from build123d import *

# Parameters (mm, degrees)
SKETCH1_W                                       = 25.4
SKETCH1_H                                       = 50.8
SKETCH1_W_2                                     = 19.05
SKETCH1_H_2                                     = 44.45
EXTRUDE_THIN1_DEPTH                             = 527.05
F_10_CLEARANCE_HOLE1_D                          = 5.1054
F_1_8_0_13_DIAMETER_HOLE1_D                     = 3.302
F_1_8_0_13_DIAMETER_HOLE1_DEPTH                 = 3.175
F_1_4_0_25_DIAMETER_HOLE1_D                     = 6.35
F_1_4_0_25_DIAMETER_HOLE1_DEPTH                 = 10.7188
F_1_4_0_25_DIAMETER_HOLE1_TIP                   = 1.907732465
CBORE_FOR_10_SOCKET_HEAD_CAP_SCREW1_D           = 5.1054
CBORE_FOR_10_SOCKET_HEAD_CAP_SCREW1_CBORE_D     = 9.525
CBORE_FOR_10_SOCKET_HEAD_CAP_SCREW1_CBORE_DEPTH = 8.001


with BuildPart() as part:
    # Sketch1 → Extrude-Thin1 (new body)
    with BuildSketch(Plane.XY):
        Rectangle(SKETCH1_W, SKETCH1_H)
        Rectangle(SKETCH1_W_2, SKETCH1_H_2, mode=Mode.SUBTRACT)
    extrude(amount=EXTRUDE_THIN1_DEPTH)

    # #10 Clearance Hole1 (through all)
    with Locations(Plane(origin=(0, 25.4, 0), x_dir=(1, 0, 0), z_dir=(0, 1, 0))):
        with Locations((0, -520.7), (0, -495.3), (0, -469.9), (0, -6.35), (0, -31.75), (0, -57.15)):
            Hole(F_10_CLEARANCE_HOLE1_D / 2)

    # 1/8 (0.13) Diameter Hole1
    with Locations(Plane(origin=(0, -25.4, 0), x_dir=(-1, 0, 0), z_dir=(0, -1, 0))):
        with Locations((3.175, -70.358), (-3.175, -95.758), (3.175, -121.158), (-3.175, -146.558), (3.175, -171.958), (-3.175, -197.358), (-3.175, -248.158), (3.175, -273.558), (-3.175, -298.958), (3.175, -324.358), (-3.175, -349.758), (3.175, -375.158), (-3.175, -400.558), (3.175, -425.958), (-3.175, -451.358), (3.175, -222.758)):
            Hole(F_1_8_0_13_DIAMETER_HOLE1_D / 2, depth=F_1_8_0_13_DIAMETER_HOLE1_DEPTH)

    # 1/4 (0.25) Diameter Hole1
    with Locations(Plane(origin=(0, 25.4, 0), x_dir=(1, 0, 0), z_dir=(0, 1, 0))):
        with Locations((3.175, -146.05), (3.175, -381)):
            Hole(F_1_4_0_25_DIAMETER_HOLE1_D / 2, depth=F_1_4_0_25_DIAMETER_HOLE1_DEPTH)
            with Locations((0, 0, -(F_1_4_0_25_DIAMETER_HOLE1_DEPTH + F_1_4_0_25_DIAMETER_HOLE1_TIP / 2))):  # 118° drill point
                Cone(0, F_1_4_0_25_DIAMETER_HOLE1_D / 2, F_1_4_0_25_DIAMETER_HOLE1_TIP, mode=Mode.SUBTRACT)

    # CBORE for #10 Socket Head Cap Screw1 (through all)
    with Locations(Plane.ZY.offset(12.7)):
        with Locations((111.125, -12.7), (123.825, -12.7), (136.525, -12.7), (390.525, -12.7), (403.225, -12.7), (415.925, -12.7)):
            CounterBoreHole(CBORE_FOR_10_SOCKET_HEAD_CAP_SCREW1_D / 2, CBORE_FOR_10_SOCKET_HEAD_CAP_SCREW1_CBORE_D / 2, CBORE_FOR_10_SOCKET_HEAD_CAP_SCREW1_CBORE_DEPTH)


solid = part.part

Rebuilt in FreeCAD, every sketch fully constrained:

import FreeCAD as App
import Part
import Sketcher
from FreeCAD import Vector
Q = App.Units.Quantity


def add_polygon(sketch, points):
    """Adds a closed chain of lines whose ends are joined by coincident constraints."""
    first, n = sketch.GeometryCount, len(points)
    for a, b in zip(points, points[1:] + points[:1]):
        sketch.addGeometry(Part.LineSegment(App.Vector(*a, 0), App.Vector(*b, 0)), False)
    for i in range(n):
        sketch.addConstraint(Sketcher.Constraint("Coincident", first + i, 2, first + (i + 1) % n, 1))

doc = App.newDocument("Part")
params = doc.addObject("Spreadsheet::Sheet", "Params")
for row, (alias, value) in enumerate([
    ("sketch1_width", "1 in"),
    ("sketch1_height", "2 in"),
    ("sketch1_width2", "0.75 in"),
    ("sketch1_height2", "1.75 in"),
    ("pad1_length", "20.75 in"),
    ("sketch2_diameter", "0.201 in"),
    ("hole_diameter", "0.201 in"),
    ("sketch3_diameter", "0.13 in"),
    ("hole2_diameter", "0.13 in"),
    ("hole2_depth", "0.125 in"),
    ("sketch4_diameter", "0.25 in"),
    ("hole3_diameter", "0.25 in"),
    ("hole3_depth", "0.422 in"),
    ("sketch5_diameter", "0.201 in"),
    ("hole4_diameter", "0.201 in"),
    ("hole4_cbore_diameter", "0.375 in"),
    ("hole4_cbore_depth", "0.315 in"),
], start=1):
    params.set(f"A{row}", alias)
    params.set(f"B{row}", "=" + value)
    params.setAlias(f"B{row}", alias)

body = doc.addObject("PartDesign::Body", "Body")

# Sketch on XY plane
sketch1 = body.newObject("Sketcher::SketchObject", "Sketch")
sketch1.AttachmentSupport = (doc.getObject("XY_Plane"), [""])
sketch1.MapMode = "FlatFace"
add_polygon(sketch1, [(-13, 25), (-13, -25), (13, -25), (13, 25)])  # lines 0-3
add_polygon(sketch1, [(10, -22), (-10, -22), (-10, 22), (10, 22)])  # lines 4-7
sketch1.addConstraint([
    Sketcher.Constraint("Vertical", 0),
    Sketcher.Constraint("Horizontal", 1),
    Sketcher.Constraint("Vertical", 2),
    Sketcher.Constraint("Horizontal", 3),
    Sketcher.Constraint("Horizontal", 4),
    Sketcher.Constraint("Vertical", 5),
    Sketcher.Constraint("Horizontal", 6),
    Sketcher.Constraint("Vertical", 7),
    Sketcher.Constraint("Symmetric", 0, 2, 2, 2, -1, 1),
    Sketcher.Constraint("Symmetric", 4, 2, 6, 2, -1, 1),
    Sketcher.Constraint("DistanceX", 1, 1, 1, 2, Q("1 in")),
    Sketcher.Constraint("DistanceY", 0, 2, 0, 1, Q("2 in")),
    Sketcher.Constraint("DistanceX", 4, 2, 4, 1, Q("0.75 in")),
    Sketcher.Constraint("DistanceY", 5, 1, 5, 2, Q("1.75 in")),
])
sketch1.setExpression("Constraints[18]", "Params.sketch1_width")
sketch1.setExpression("Constraints[19]", "Params.sketch1_height")
sketch1.setExpression("Constraints[20]", "Params.sketch1_width2")
sketch1.setExpression("Constraints[21]", "Params.sketch1_height2")
pad1 = body.newObject("PartDesign::Pad", "Pad")
pad1.Profile = sketch1
pad1.setExpression("Length", "Params.pad1_length")

# Sketch on XZ plane
sketch2 = body.newObject("Sketcher::SketchObject", "Sketch001")
sketch2.AttachmentSupport = (doc.getObject("XZ_Plane"), [""])
sketch2.MapMode = "FlatFace"
sketch2.AttachmentOffset = App.Placement(Vector(0, 0, -1 * 25.4), App.Rotation())
sketch2.addGeometry([
    Part.Circle(Vector(0, 520.7, 0), Vector(0, 0, 1), 2.6),  # 0
    Part.Circle(Vector(0, 495.3, 0), Vector(0, 0, 1), 2.6),  # 1
    Part.Circle(Vector(0, 469.9, 0), Vector(0, 0, 1), 2.6),  # 2
    Part.Circle(Vector(0, 6.3, 0), Vector(0, 0, 1), 2.6),  # 3
    Part.Circle(Vector(0, 31.8, 0), Vector(0, 0, 1), 2.6),  # 4
    Part.Circle(Vector(0, 57.1, 0), Vector(0, 0, 1), 2.6),  # 5
], False)
sketch2.addConstraint([
    Sketcher.Constraint("Equal", 0, 1),
    Sketcher.Constraint("Equal", 1, 2),
    Sketcher.Constraint("Equal", 2, 3),
    Sketcher.Constraint("Equal", 3, 4),
    Sketcher.Constraint("Equal", 4, 5),
    Sketcher.Constraint("PointOnObject", 0, 3, -2),
    Sketcher.Constraint("PointOnObject", 1, 3, -2),
    Sketcher.Constraint("PointOnObject", 2, 3, -2),
    Sketcher.Constraint("PointOnObject", 3, 3, -2),
    Sketcher.Constraint("PointOnObject", 4, 3, -2),
    Sketcher.Constraint("PointOnObject", 5, 3, -2),
    Sketcher.Constraint("Diameter", 0, Q("0.201 in")),
    Sketcher.Constraint("DistanceY", 1, 3, 0, 3, Q("1 in")),
    Sketcher.Constraint("DistanceY", 2, 3, 1, 3, Q("1 in")),
    Sketcher.Constraint("DistanceY", 3, 3, 4, 3, Q("1 in")),
    Sketcher.Constraint("DistanceY", 4, 3, 5, 3, Q("1 in")),
    Sketcher.Constraint("DistanceY", -1, 1, 0, 3, Q("20.5 in")),
    Sketcher.Constraint("DistanceY", -1, 1, 3, 3, Q("0.25 in")),
])
sketch2.setExpression("Constraints[11]", "Params.sketch2_diameter")
doc.recompute()
hole = body.newObject("PartDesign::Hole", "Hole")
hole.Profile = sketch2
hole.ThreadType = "None"
hole.setExpression("Diameter", "Params.hole_diameter")
hole.DepthType = "ThroughAll"
hole.Reversed = True

# Sketch on XZ plane
sketch3 = body.newObject("Sketcher::SketchObject", "Sketch002")
sketch3.AttachmentSupport = (doc.getObject("XZ_Plane"), [""])
sketch3.MapMode = "FlatFace"
sketch3.AttachmentOffset = App.Placement(Vector(0, 0, 1 * 25.4), App.Rotation())
sketch3.addGeometry([
    Part.Circle(Vector(-3.2, 70.4, 0), Vector(0, 0, 1), 1.7),  # 0
    Part.Circle(Vector(3.2, 95.8, 0), Vector(0, 0, 1), 1.7),  # 1
    Part.Circle(Vector(-3.2, 121.2, 0), Vector(0, 0, 1), 1.7),  # 2
    Part.Circle(Vector(3.2, 146.6, 0), Vector(0, 0, 1), 1.7),  # 3
    Part.Circle(Vector(-3.2, 172, 0), Vector(0, 0, 1), 1.7),  # 4
    Part.Circle(Vector(3.2, 197.4, 0), Vector(0, 0, 1), 1.7),  # 5
    Part.Circle(Vector(3.2, 248.2, 0), Vector(0, 0, 1), 1.7),  # 6
    Part.Circle(Vector(-3.2, 273.6, 0), Vector(0, 0, 1), 1.7),  # 7
    Part.Circle(Vector(3.2, 299, 0), Vector(0, 0, 1), 1.7),  # 8
    Part.Circle(Vector(-3.2, 324.4, 0), Vector(0, 0, 1), 1.7),  # 9
    Part.Circle(Vector(3.2, 349.8, 0), Vector(0, 0, 1), 1.7),  # 10
    Part.Circle(Vector(-3.2, 375.2, 0), Vector(0, 0, 1), 1.7),  # 11
    Part.Circle(Vector(3.2, 400.6, 0), Vector(0, 0, 1), 1.7),  # 12
    Part.Circle(Vector(-3.2, 426, 0), Vector(0, 0, 1), 1.7),  # 13
    Part.Circle(Vector(3.2, 451.4, 0), Vector(0, 0, 1), 1.7),  # 14
    Part.Circle(Vector(-3.2, 222.8, 0), Vector(0, 0, 1), 1.7),  # 15
], False)
sketch3.addConstraint([
    Sketcher.Constraint("Equal", 0, 1),
    Sketcher.Constraint("Equal", 1, 2),
    Sketcher.Constraint("Equal", 2, 3),
    Sketcher.Constraint("Equal", 3, 4),
    Sketcher.Constraint("Equal", 4, 5),
    Sketcher.Constraint("Equal", 5, 6),
    Sketcher.Constraint("Equal", 6, 7),
    Sketcher.Constraint("Equal", 7, 8),
    Sketcher.Constraint("Equal", 8, 9),
    Sketcher.Constraint("Equal", 9, 10),
    Sketcher.Constraint("Equal", 10, 11),
    Sketcher.Constraint("Equal", 11, 12),
    Sketcher.Constraint("Equal", 12, 13),
    Sketcher.Constraint("Equal", 13, 14),
    Sketcher.Constraint("Equal", 14, 15),
    Sketcher.Constraint("Vertical", 0, 3, 2, 3),
    Sketcher.Constraint("Vertical", 1, 3, 3, 3),
    Sketcher.Constraint("Vertical", 2, 3, 4, 3),
    Sketcher.Constraint("Vertical", 3, 3, 5, 3),
    Sketcher.Constraint("Vertical", 5, 3, 6, 3),
    Sketcher.Constraint("Vertical", 4, 3, 7, 3),
    Sketcher.Constraint("Vertical", 6, 3, 8, 3),
    Sketcher.Constraint("Vertical", 7, 3, 9, 3),
    Sketcher.Constraint("Vertical", 8, 3, 10, 3),
    Sketcher.Constraint("Vertical", 9, 3, 11, 3),
    Sketcher.Constraint("Vertical", 10, 3, 12, 3),
    Sketcher.Constraint("Vertical", 11, 3, 13, 3),
    Sketcher.Constraint("Vertical", 12, 3, 14, 3),
    Sketcher.Constraint("Vertical", 13, 3, 15, 3),
    Sketcher.Constraint("Diameter", 0, Q("0.13 in")),
    Sketcher.Constraint("DistanceY", 0, 3, 1, 3, Q("1 in")),
    Sketcher.Constraint("DistanceY", 1, 3, 2, 3, Q("1 in")),
    Sketcher.Constraint("DistanceY", 2, 3, 3, 3, Q("1 in")),
    Sketcher.Constraint("DistanceY", 3, 3, 4, 3, Q("1 in")),
    Sketcher.Constraint("DistanceY", 4, 3, 5, 3, Q("1 in")),
    Sketcher.Constraint("DistanceY", 5, 3, 6, 3, Q("2 in")),
    Sketcher.Constraint("DistanceY", 6, 3, 7, 3, Q("1 in")),
    Sketcher.Constraint("DistanceY", 7, 3, 8, 3, Q("1 in")),
    Sketcher.Constraint("DistanceY", 8, 3, 9, 3, Q("1 in")),
    Sketcher.Constraint("DistanceY", 9, 3, 10, 3, Q("1 in")),
    Sketcher.Constraint("DistanceY", 10, 3, 11, 3, Q("1 in")),
    Sketcher.Constraint("DistanceY", 11, 3, 12, 3, Q("1 in")),
    Sketcher.Constraint("DistanceY", 12, 3, 13, 3, Q("1 in")),
    Sketcher.Constraint("DistanceY", 13, 3, 14, 3, Q("1 in")),
    Sketcher.Constraint("DistanceY", 15, 3, 6, 3, Q("1 in")),
    Sketcher.Constraint("DistanceY", -1, 1, 0, 3, Q("2.77 in")),
    Sketcher.Constraint("DistanceX", 0, 3, 1, 3, Q("0.25 in")),
    Sketcher.Constraint("DistanceX", 0, 3, -1, 1, Q("0.125 in")),
])
sketch3.setExpression("Constraints[29]", "Params.sketch3_diameter")
doc.recompute()
hole2 = body.newObject("PartDesign::Hole", "Hole001")
hole2.Profile = sketch3
hole2.ThreadType = "None"
hole2.setExpression("Diameter", "Params.hole2_diameter")
hole2.DepthType = "Dimension"
hole2.setExpression("Depth", "Params.hole2_depth")
hole2.DrillPoint = "Flat"

# Sketch on XZ plane
sketch4 = body.newObject("Sketcher::SketchObject", "Sketch003")
sketch4.AttachmentSupport = (doc.getObject("XZ_Plane"), [""])
sketch4.MapMode = "FlatFace"
sketch4.AttachmentOffset = App.Placement(Vector(0, 0, -1 * 25.4), App.Rotation())
sketch4.addGeometry([
    Part.Circle(Vector(3.2, 146.1, 0), Vector(0, 0, 1), 3.2),
    Part.Circle(Vector(3.2, 381, 0), Vector(0, 0, 1), 3.2),
], False)
sketch4.addConstraint([
    Sketcher.Constraint("Equal", 0, 1),
    Sketcher.Constraint("Vertical", 0, 3, 1, 3),
    Sketcher.Constraint("Diameter", 0, Q("0.25 in")),
    Sketcher.Constraint("DistanceY", -1, 1, 1, 3, Q("15 in")),
    Sketcher.Constraint("DistanceY", -1, 1, 0, 3, Q("5.75 in")),
    Sketcher.Constraint("DistanceX", -1, 1, 0, 3, Q("0.125 in")),
])
sketch4.setExpression("Constraints[2]", "Params.sketch4_diameter")
doc.recompute()
hole3 = body.newObject("PartDesign::Hole", "Hole002")
hole3.Profile = sketch4
hole3.ThreadType = "None"
hole3.setExpression("Diameter", "Params.hole3_diameter")
hole3.DepthType = "Dimension"
hole3.setExpression("Depth", "Params.hole3_depth")
hole3.DrillPoint = "Angled"
hole3.DrillPointAngle = 118
hole3.Reversed = True

# Sketch on YZ plane
sketch5 = body.newObject("Sketcher::SketchObject", "Sketch004")
sketch5.AttachmentSupport = (doc.getObject("YZ_Plane"), [""])
sketch5.MapMode = "FlatFace"
sketch5.AttachmentOffset = App.Placement(Vector(0, 0, -0.5 * 25.4), App.Rotation())
sketch5.addGeometry([
    Part.Circle(Vector(-12.7, 111.1, 0), Vector(0, 0, 1), 2.6),  # 0
    Part.Circle(Vector(-12.7, 123.8, 0), Vector(0, 0, 1), 2.6),  # 1
    Part.Circle(Vector(-12.7, 136.5, 0), Vector(0, 0, 1), 2.6),  # 2
    Part.Circle(Vector(-12.7, 390.5, 0), Vector(0, 0, 1), 2.6),  # 3
    Part.Circle(Vector(-12.7, 403.2, 0), Vector(0, 0, 1), 2.6),  # 4
    Part.Circle(Vector(-12.7, 415.9, 0), Vector(0, 0, 1), 2.6),  # 5
], False)
sketch5.addConstraint([
    Sketcher.Constraint("Equal", 0, 1),
    Sketcher.Constraint("Equal", 1, 2),
    Sketcher.Constraint("Equal", 2, 3),
    Sketcher.Constraint("Equal", 3, 4),
    Sketcher.Constraint("Equal", 4, 5),
    Sketcher.Constraint("Vertical", 0, 3, 1, 3),
    Sketcher.Constraint("Vertical", 1, 3, 2, 3),
    Sketcher.Constraint("Vertical", 2, 3, 3, 3),
    Sketcher.Constraint("Vertical", 3, 3, 4, 3),
    Sketcher.Constraint("Vertical", 4, 3, 5, 3),
    Sketcher.Constraint("Diameter", 0, Q("0.201 in")),
    Sketcher.Constraint("DistanceY", 0, 3, 2, 3, Q("1 in")),
    Sketcher.Constraint("DistanceY", 2, 3, 3, 3, Q("10 in")),
    Sketcher.Constraint("DistanceY", 1, 3, 4, 3, Q("11 in")),
    Sketcher.Constraint("DistanceY", 3, 3, 5, 3, Q("1 in")),
    Sketcher.Constraint("DistanceX", 0, 3, -1, 1, Q("0.5 in")),
    Sketcher.Constraint("DistanceY", 0, 3, 1, 3, Q("0.5 in")),
    Sketcher.Constraint("DistanceY", -1, 1, 0, 3, Q("4.375 in")),
])
sketch5.setExpression("Constraints[10]", "Params.sketch5_diameter")
doc.recompute()
hole4 = body.newObject("PartDesign::Hole", "Hole003")
hole4.Profile = sketch5
hole4.ThreadType = "None"
hole4.setExpression("Diameter", "Params.hole4_diameter")
hole4.DepthType = "ThroughAll"
hole4.HoleCutType = "Counterbore"
hole4.setExpression("HoleCutDiameter", "Params.hole4_cbore_diameter")
hole4.setExpression("HoleCutDepth", "Params.hole4_cbore_depth")
hole4.Reversed = True

doc.recompute()
